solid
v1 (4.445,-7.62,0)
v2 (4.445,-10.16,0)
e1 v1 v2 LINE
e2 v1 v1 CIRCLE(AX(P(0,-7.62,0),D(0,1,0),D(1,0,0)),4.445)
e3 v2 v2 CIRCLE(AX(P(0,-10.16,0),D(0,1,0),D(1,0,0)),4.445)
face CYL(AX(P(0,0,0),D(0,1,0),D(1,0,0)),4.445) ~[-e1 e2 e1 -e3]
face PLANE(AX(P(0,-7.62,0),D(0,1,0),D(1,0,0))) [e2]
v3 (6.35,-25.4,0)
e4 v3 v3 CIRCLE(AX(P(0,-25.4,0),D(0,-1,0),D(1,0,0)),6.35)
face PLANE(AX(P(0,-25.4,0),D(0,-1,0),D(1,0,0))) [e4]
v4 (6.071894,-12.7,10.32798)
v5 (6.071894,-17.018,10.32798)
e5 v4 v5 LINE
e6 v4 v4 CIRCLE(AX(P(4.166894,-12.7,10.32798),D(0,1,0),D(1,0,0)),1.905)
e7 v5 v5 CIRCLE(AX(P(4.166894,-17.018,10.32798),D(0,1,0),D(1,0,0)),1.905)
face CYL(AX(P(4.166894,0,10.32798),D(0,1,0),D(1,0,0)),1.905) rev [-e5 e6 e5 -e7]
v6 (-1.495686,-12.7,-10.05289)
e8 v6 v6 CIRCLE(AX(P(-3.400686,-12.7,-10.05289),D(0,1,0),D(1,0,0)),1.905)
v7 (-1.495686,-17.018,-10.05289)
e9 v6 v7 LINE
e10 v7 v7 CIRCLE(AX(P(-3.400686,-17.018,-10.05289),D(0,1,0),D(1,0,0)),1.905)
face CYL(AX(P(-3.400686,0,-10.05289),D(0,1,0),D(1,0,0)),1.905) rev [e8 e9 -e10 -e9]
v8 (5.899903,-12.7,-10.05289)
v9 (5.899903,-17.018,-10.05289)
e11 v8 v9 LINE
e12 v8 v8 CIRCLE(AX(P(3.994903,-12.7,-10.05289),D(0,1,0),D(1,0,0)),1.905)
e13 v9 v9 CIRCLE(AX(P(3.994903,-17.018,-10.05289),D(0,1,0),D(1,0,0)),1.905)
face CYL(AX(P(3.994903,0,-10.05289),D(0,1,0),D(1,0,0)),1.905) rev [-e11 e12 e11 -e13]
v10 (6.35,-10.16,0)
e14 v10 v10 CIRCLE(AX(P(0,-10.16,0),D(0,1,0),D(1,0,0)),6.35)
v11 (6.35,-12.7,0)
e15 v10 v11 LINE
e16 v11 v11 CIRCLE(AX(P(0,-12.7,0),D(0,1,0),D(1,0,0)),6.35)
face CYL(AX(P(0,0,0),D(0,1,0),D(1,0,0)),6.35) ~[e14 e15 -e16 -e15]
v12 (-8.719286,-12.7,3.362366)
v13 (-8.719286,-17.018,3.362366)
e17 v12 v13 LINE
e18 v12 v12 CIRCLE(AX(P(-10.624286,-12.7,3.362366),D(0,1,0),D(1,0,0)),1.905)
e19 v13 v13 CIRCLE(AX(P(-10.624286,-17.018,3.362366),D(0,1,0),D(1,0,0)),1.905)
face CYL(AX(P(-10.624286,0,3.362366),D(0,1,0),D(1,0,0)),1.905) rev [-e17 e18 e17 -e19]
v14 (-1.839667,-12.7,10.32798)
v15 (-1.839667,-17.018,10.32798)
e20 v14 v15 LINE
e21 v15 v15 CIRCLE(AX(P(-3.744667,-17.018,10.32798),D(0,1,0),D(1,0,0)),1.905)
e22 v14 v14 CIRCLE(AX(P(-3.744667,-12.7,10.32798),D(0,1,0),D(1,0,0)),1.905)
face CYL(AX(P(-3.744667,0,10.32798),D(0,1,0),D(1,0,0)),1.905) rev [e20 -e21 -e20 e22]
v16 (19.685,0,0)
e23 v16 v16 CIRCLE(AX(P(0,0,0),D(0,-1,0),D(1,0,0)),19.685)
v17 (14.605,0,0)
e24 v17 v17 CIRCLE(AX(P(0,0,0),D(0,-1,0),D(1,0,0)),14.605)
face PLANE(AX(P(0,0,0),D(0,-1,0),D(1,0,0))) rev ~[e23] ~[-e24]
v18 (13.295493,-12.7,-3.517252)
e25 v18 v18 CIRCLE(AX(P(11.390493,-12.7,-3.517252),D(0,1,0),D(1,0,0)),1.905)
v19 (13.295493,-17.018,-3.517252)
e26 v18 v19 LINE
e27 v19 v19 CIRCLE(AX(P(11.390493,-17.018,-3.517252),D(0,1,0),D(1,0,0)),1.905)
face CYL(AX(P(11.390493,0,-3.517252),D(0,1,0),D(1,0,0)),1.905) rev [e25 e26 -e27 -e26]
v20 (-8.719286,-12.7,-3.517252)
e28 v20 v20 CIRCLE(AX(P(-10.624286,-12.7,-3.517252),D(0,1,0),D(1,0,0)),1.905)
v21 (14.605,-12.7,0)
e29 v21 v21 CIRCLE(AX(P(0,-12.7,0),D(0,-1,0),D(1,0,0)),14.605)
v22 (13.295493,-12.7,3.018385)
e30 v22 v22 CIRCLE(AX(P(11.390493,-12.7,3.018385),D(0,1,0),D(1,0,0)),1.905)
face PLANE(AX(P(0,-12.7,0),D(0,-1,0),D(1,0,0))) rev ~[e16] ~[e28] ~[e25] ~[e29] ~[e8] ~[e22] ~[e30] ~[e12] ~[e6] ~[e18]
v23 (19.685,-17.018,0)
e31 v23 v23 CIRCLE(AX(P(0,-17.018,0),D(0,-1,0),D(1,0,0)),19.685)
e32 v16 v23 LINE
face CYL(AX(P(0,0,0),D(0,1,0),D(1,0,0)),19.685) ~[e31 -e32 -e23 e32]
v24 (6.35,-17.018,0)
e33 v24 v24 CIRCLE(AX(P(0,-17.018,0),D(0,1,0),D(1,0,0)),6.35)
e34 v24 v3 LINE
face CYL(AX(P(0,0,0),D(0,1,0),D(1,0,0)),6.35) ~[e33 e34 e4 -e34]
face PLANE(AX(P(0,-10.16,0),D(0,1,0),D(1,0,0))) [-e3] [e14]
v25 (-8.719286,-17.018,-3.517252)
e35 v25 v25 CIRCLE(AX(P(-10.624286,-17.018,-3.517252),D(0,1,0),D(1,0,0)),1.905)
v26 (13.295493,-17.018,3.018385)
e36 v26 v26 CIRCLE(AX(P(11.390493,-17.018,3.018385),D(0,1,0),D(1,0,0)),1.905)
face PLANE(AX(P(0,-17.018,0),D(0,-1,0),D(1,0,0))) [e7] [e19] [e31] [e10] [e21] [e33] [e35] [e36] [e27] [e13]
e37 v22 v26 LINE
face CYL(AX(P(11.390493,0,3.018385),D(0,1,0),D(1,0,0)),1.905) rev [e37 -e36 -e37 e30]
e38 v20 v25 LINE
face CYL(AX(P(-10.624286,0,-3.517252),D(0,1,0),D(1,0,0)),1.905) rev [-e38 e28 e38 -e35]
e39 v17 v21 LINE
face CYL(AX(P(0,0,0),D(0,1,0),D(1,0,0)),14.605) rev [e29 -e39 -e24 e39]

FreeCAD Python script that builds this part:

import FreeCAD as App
import Part
import Sketcher
from FreeCAD import Vector
Q = App.Units.Quantity

doc = App.newDocument("Part")
params = doc.addObject("Spreadsheet::Sheet", "Params")
for row, (alias, value) in enumerate([
    ("sketch1_diameter", "1.55 in"),
    ("pad1_length", "0.67 in"),
    ("sketch2_diameter", "1.15 in"),
    ("pocket1_length", "0.5 in"),
    ("sketch3_diameter", "0.15 in"),
    ("pocket2_length", "0.84 in"),
    ("sketch4_diameter", "0.5 in"),
    ("pad2_length", "1 in"),
    ("sketch5_diameter", "0.5 in"),
    ("pocket3_length", "0.4 in"),
    ("sketch6_diameter", "0.35 in"),
    ("pad3_length", "1 in"),
    ("sketch7_diameter", "0.35 in"),
    ("pocket4_length", "0.3 in"),
], start=1):
    params.set(f"A{row}", alias)
    params.set(f"B{row}", "=" + value)
    params.setAlias(f"B{row}", alias)

body = doc.addObject("PartDesign::Body", "Body")

sketch1 = body.newObject("Sketcher::SketchObject", "Sketch")
sketch1.AttachmentSupport = (doc.getObject("XZ_Plane"), [""])
sketch1.MapMode = "FlatFace"
sketch1.addGeometry(Part.Circle(Vector(0, 0, 0), Vector(0, 0, 1), 20), False)
sketch1.addConstraint([
    Sketcher.Constraint("Coincident", 0, 3, -1, 1),
    Sketcher.Constraint("Diameter", 0, Q("1.55 in")),
])
sketch1.setExpression("Constraints[1]", "Params.sketch1_diameter")
pad1 = body.newObject("PartDesign::Pad", "Pad")
pad1.Profile = sketch1
pad1.setExpression("Length", "Params.pad1_length")

sketch2 = body.newObject("Sketcher::SketchObject", "Sketch001")
sketch2.AttachmentSupport = (doc.getObject("XZ_Plane"), [""])
sketch2.MapMode = "FlatFace"
sketch2.addGeometry(Part.Circle(Vector(0, 0, 0), Vector(0, 0, 1), 15), False)
sketch2.addConstraint([
    Sketcher.Constraint("Coincident", 0, 3, -1, 1),
    Sketcher.Constraint("Diameter", 0, Q("1.15 in")),
])
sketch2.setExpression("Constraints[1]", "Params.sketch2_diameter")
pocket1 = body.newObject("PartDesign::Pocket", "Pocket")
pocket1.Profile = sketch2
pocket1.setExpression("Length", "Params.pocket1_length")
pocket1.Reversed = True

sketch3 = body.newObject("Sketcher::SketchObject", "Sketch002")
sketch3.AttachmentSupport = (doc.getObject("XZ_Plane"), [""])
sketch3.MapMode = "FlatFace"
sketch3.addGeometry([
    Part.Circle(Vector(-3.7, 10.3, 0), Vector(0, 0, 1), 1.9),
    Part.Circle(Vector(-10.6, 3.4, 0), Vector(0, 0, 1), 1.9),
    Part.Circle(Vector(-10.6, -3.5, 0), Vector(0, 0, 1), 1.9),
    Part.Circle(Vector(-3.4, -10.1, 0), Vector(0, 0, 1), 1.9),
    Part.Circle(Vector(4, -10.1, 0), Vector(0, 0, 1), 1.9),
    Part.Circle(Vector(11.4, -3.5, 0), Vector(0, 0, 1), 1.9),
    Part.Circle(Vector(4.2, 10.3, 0), Vector(0, 0, 1), 1.9),
    Part.Circle(Vector(11.4, 3, 0), Vector(0, 0, 1), 1.9),
], False)
sketch3.addConstraint([
    Sketcher.Constraint("Equal", 0, 1),
    Sketcher.Constraint("Equal", 1, 2),
    Sketcher.Constraint("Equal", 2, 3),
    Sketcher.Constraint("Equal", 3, 4),
    Sketcher.Constraint("Equal", 4, 5),
    Sketcher.Constraint("Equal", 5, 6),
    Sketcher.Constraint("Equal", 6, 7),
    Sketcher.Constraint("Horizontal", 3, 3, 4, 3),
    Sketcher.Constraint("Horizontal", 2, 3, 5, 3),
    Sketcher.Constraint("Horizontal", 0, 3, 6, 3),
    Sketcher.Constraint("Vertical", 1, 3, 2, 3),
    Sketcher.Constraint("Vertical", 5, 3, 7, 3),
    Sketcher.Constraint("Diameter", 0, Q("0.15 in")),
    Sketcher.Constraint("DistanceX", 2, 3, 3, 3, Q("7.2236 mm")),
    Sketcher.Constraint("DistanceX", 6, 3, 5, 3, Q("7.223599 mm")),
    Sketcher.Constraint("DistanceY", -1, 1, 0, 3, Q("10.32798 mm")),
    Sketcher.Constraint("DistanceY", 2, 3, -1, 1, Q("3.517252 mm")),
    Sketcher.Constraint("DistanceY", 3, 3, -1, 1, Q("10.05289 mm")),
    Sketcher.Constraint("DistanceX", 1, 3, 0, 3, Q("6.879619 mm")),
    Sketcher.Constraint("DistanceY", 2, 3, 1, 3, Q("6.879618 mm")),
    Sketcher.Constraint("DistanceX", 3, 3, 4, 3, Q("7.395589 mm")),
    Sketcher.Constraint("DistanceX", 4, 3, 5, 3, Q("7.39559 mm")),
    Sketcher.Constraint("DistanceX", 0, 3, -1, 1, Q("3.744667 mm")),
    Sketcher.Constraint("DistanceY", -1, 1, 7, 3, Q("3.018385 mm")),
])
sketch3.setExpression("Constraints[12]", "Params.sketch3_diameter")
pocket2 = body.newObject("PartDesign::Pocket", "Pocket001")
pocket2.Profile = sketch3
pocket2.setExpression("Length", "Params.pocket2_length")
pocket2.Reversed = True

sketch4 = body.newObject("Sketcher::SketchObject", "Sketch003")
sketch4.AttachmentSupport = (doc.getObject("XZ_Plane"), [""])
sketch4.MapMode = "FlatFace"
sketch4.addGeometry(Part.Circle(Vector(0, 0, 0), Vector(0, 0, 1), 6), False)
sketch4.addConstraint([
    Sketcher.Constraint("Coincident", 0, 3, -1, 1),
    Sketcher.Constraint("Diameter", 0, Q("0.5 in")),
])
sketch4.setExpression("Constraints[1]", "Params.sketch4_diameter")
pad2 = body.newObject("PartDesign::Pad", "Pad001")
pad2.Profile = sketch4
pad2.setExpression("Length", "Params.pad2_length")

sketch5 = body.newObject("Sketcher::SketchObject", "Sketch004")
sketch5.AttachmentSupport = (doc.getObject("XZ_Plane"), [""])
sketch5.MapMode = "FlatFace"
sketch5.addGeometry(Part.Circle(Vector(0, 0, 0), Vector(0, 0, 1), 6), False)
sketch5.addConstraint([
    Sketcher.Constraint("Coincident", 0, 3, -1, 1),
    Sketcher.Constraint("Diameter", 0, Q("0.5 in")),
])
sketch5.setExpression("Constraints[1]", "Params.sketch5_diameter")
pocket3 = body.newObject("PartDesign::Pocket", "Pocket002")
pocket3.Profile = sketch5
pocket3.setExpression("Length", "Params.pocket3_length")
pocket3.Reversed = True

sketch6 = body.newObject("Sketcher::SketchObject", "Sketch005")
sketch6.AttachmentSupport = (doc.getObject("XZ_Plane"), [""])
sketch6.MapMode = "FlatFace"
sketch6.addGeometry(Part.Circle(Vector(0, 0, 0), Vector(0, 0, 1), 4.4), False)
sketch6.addConstraint([
    Sketcher.Constraint("Coincident", 0, 3, -1, 1),
    Sketcher.Constraint("Diameter", 0, Q("0.35 in")),
])
sketch6.setExpression("Constraints[1]", "Params.sketch6_diameter")
pad3 = body.newObject("PartDesign::Pad", "Pad002")
pad3.Profile = sketch6
pad3.setExpression("Length", "Params.pad3_length")

sketch7 = body.newObject("Sketcher::SketchObject", "Sketch006")
sketch7.AttachmentSupport = (doc.getObject("XZ_Plane"), [""])
sketch7.MapMode = "FlatFace"
sketch7.addGeometry(Part.Circle(Vector(0, 0, 0), Vector(0, 0, 1), 4.4), False)
sketch7.addConstraint([
    Sketcher.Constraint("Coincident", 0, 3, -1, 1),
    Sketcher.Constraint("Diameter", 0, Q("0.35 in")),
])
sketch7.setExpression("Constraints[1]", "Params.sketch7_diameter")
pocket4 = body.newObject("PartDesign::Pocket", "Pocket003")
pocket4.Profile = sketch7
pocket4.setExpression("Length", "Params.pocket4_length")
pocket4.Reversed = True

doc.recompute()
